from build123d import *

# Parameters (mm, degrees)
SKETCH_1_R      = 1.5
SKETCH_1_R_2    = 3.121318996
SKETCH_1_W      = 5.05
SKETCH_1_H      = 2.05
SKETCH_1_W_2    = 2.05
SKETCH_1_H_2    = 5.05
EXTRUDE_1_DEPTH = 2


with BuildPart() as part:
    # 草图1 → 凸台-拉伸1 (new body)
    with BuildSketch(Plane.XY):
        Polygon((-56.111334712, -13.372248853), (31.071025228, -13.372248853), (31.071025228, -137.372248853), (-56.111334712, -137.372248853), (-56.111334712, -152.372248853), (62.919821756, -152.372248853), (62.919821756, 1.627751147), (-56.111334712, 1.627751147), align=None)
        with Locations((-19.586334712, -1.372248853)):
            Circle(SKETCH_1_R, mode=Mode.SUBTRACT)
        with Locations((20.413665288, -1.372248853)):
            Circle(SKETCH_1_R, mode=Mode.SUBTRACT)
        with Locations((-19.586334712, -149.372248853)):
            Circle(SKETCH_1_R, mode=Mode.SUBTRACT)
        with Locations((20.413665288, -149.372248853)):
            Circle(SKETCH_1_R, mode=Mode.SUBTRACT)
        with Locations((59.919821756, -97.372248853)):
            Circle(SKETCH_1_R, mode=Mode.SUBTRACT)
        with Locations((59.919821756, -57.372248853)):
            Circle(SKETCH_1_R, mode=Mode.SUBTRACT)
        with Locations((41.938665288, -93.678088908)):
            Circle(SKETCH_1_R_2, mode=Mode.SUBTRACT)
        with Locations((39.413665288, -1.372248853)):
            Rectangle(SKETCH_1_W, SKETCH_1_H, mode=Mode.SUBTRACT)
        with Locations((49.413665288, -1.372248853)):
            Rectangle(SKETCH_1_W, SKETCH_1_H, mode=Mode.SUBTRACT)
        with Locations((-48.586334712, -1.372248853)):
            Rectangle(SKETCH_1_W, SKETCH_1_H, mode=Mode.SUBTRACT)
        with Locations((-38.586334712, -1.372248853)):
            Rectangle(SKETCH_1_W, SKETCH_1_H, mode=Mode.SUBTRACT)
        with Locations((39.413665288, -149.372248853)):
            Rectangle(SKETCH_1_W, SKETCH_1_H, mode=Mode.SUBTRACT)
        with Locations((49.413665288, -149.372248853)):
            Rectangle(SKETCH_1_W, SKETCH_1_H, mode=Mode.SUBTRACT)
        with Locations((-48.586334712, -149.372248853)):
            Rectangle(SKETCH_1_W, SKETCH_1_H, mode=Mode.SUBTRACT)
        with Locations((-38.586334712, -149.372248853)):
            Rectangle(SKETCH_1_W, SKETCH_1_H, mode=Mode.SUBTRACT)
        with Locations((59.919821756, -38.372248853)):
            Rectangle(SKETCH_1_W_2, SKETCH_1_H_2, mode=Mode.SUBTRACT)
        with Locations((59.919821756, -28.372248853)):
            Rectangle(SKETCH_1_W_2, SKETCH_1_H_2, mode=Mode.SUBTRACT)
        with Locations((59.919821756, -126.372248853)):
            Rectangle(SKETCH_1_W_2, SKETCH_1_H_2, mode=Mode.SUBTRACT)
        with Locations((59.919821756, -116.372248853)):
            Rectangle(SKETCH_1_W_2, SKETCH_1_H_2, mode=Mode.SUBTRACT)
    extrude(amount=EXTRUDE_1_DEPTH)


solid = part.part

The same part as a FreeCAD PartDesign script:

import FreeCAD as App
import Part
import Sketcher

V = App.Vector

doc = App.newDocument("Part")
body = doc.addObject("PartDesign::Body", "Body")

sketch1 = body.newObject("Sketcher::SketchObject", "Sketch")
sketch1.AttachmentSupport = (doc.getObject("XY_Plane"), [""])
sketch1.MapMode = "FlatFace"
sketch1.addGeometry([
    Part.LineSegment(V(-56.111335, -13.372249, 0), V(31.071025, -13.372249, 0)),
    Part.LineSegment(V(31.071025, -13.372249, 0), V(31.071025, -137.372249, 0)),
    Part.LineSegment(V(31.071025, -137.372249, 0), V(-56.111335, -137.372249, 0)),
    Part.LineSegment(V(-56.111335, -137.372249, 0), V(-56.111335, -152.372249, 0)),
    Part.LineSegment(V(-56.111335, -152.372249, 0), V(62.919822, -152.372249, 0)),
    Part.LineSegment(V(62.919822, -152.372249, 0), V(62.919822, 1.627751, 0)),
    Part.LineSegment(V(62.919822, 1.627751, 0), V(-56.111335, 1.627751, 0)),
    Part.LineSegment(V(-56.111335, 1.627751, 0), V(-56.111335, -13.372249, 0)),
    Part.LineSegment(V(-46.061335, -150.397249, 0), V(-51.111335, -150.397249, 0)),
    Part.LineSegment(V(-51.111335, -150.397249, 0), V(-51.111335, -148.347249, 0)),
    Part.LineSegment(V(-51.111335, -148.347249, 0), V(-46.061335, -148.347249, 0)),
    Part.LineSegment(V(-46.061335, -148.347249, 0), V(-46.061335, -150.397249, 0)),
    Part.LineSegment(V(-36.061335, -150.397249, 0), V(-41.111335, -150.397249, 0)),
    Part.LineSegment(V(-41.111335, -150.397249, 0), V(-41.111335, -148.347249, 0)),
    Part.LineSegment(V(-41.111335, -148.347249, 0), V(-36.061335, -148.347249, 0)),
    Part.LineSegment(V(-36.061335, -148.347249, 0), V(-36.061335, -150.397249, 0)),
    Part.Circle(V(-19.586335, -149.372249, 0), V(0, 0, 1), 1.5),
    Part.Circle(V(20.413665, -149.372249, 0), V(0, 0, 1), 1.5),
    Part.LineSegment(V(41.938665, -150.397249, 0), V(36.888665, -150.397249, 0)),
    Part.LineSegment(V(36.888665, -150.397249, 0), V(36.888665, -148.347249, 0)),
    Part.LineSegment(V(36.888665, -148.347249, 0), V(41.938665, -148.347249, 0)),
    Part.LineSegment(V(41.938665, -148.347249, 0), V(41.938665, -150.397249, 0)),
    Part.LineSegment(V(51.938665, -150.397249, 0), V(46.888665, -150.397249, 0)),
    Part.LineSegment(V(46.888665, -150.397249, 0), V(46.888665, -148.347249, 0)),
    Part.LineSegment(V(46.888665, -148.347249, 0), V(51.938665, -148.347249, 0)),
    Part.LineSegment(V(51.938665, -148.347249, 0), V(51.938665, -150.397249, 0)),
    Part.LineSegment(V(60.944822, -128.897249, 0), V(58.894822, -128.897249, 0)),
    Part.LineSegment(V(58.894822, -128.897249, 0), V(58.894822, -123.847249, 0)),
    Part.LineSegment(V(58.894822, -123.847249, 0), V(60.944822, -123.847249, 0)),
    Part.LineSegment(V(60.944822, -123.847249, 0), V(60.944822, -128.897249, 0)),
    Part.LineSegment(V(60.944822, -118.897249, 0), V(58.894822, -118.897249, 0)),
    Part.LineSegment(V(58.894822, -118.897249, 0), V(58.894822, -113.847249, 0)),
    Part.LineSegment(V(58.894822, -113.847249, 0), V(60.944822, -113.847249, 0)),
    Part.LineSegment(V(60.944822, -113.847249, 0), V(60.944822, -118.897249, 0)),
    Part.Circle(V(59.919822, -97.372249, 0), V(0, 0, 1), 1.5),
    Part.Circle(V(41.938665, -93.678089, 0), V(0, 0, 1), 3.121319),
    Part.LineSegment(V(-46.061335, -2.397249, 0), V(-51.111335, -2.397249, 0)),
    Part.LineSegment(V(-51.111335, -2.397249, 0), V(-51.111335, -0.347249, 0)),
    Part.LineSegment(V(-51.111335, -0.347249, 0), V(-46.061335, -0.347249, 0)),
    Part.LineSegment(V(-46.061335, -0.347249, 0), V(-46.061335, -2.397249, 0)),
    Part.LineSegment(V(-36.061335, -2.397249, 0), V(-41.111335, -2.397249, 0)),
    Part.LineSegment(V(-41.111335, -2.397249, 0), V(-41.111335, -0.347249, 0)),
    Part.LineSegment(V(-41.111335, -0.347249, 0), V(-36.061335, -0.347249, 0)),
    Part.LineSegment(V(-36.061335, -0.347249, 0), V(-36.061335, -2.397249, 0)),
    Part.Circle(V(-19.586335, -1.372249, 0), V(0, 0, 1), 1.5),
    Part.Circle(V(59.919822, -57.372249, 0), V(0, 0, 1), 1.5),
    Part.LineSegment(V(60.944822, -40.897249, 0), V(58.894822, -40.897249, 0)),
    Part.LineSegment(V(58.894822, -40.897249, 0), V(58.894822, -35.847249, 0)),
    Part.LineSegment(V(58.894822, -35.847249, 0), V(60.944822, -35.847249, 0)),
    Part.LineSegment(V(60.944822, -35.847249, 0), V(60.944822, -40.897249, 0)),
    Part.Circle(V(20.413665, -1.372249, 0), V(0, 0, 1), 1.5),
    Part.LineSegment(V(60.944822, -30.897249, 0), V(58.894822, -30.897249, 0)),
    Part.LineSegment(V(58.894822, -30.897249, 0), V(58.894822, -25.847249, 0)),
    Part.LineSegment(V(58.894822, -25.847249, 0), V(60.944822, -25.847249, 0)),
    Part.LineSegment(V(60.944822, -25.847249, 0), V(60.944822, -30.897249, 0)),
    Part.LineSegment(V(41.938665, -2.397249, 0), V(36.888665, -2.397249, 0)),
    Part.LineSegment(V(36.888665, -2.397249, 0), V(36.888665, -0.347249, 0)),
    Part.LineSegment(V(36.888665, -0.347249, 0), V(41.938665, -0.347249, 0)),
    Part.LineSegment(V(41.938665, -0.347249, 0), V(41.938665, -2.397249, 0)),
    Part.LineSegment(V(51.938665, -2.397249, 0), V(46.888665, -2.397249, 0)),
    Part.LineSegment(V(46.888665, -2.397249, 0), V(46.888665, -0.347249, 0)),
    Part.LineSegment(V(46.888665, -0.347249, 0), V(51.938665, -0.347249, 0)),
    Part.LineSegment(V(51.938665, -0.347249, 0), V(51.938665, -2.397249, 0)),
], False)
sketch1.addConstraint([
    Sketcher.Constraint("Coincident", 0, 2, 1, 1),
    Sketcher.Constraint("Coincident", 1, 2, 2, 1),
    Sketcher.Constraint("Coincident", 2, 2, 3, 1),
    Sketcher.Constraint("Coincident", 3, 2, 4, 1),
    Sketcher.Constraint("Coincident", 4, 2, 5, 1),
    Sketcher.Constraint("Coincident", 5, 2, 6, 1),
    Sketcher.Constraint("Coincident", 6, 2, 7, 1),
    Sketcher.Constraint("Coincident", 7, 2, 0, 1),
    Sketcher.Constraint("Coincident", 8, 2, 9, 1),
    Sketcher.Constraint("Coincident", 9, 2, 10, 1),
    Sketcher.Constraint("Coincident", 10, 2, 11, 1),
    Sketcher.Constraint("Coincident", 11, 2, 8, 1),
    Sketcher.Constraint("Coincident", 12, 2, 13, 1),
    Sketcher.Constraint("Coincident", 13, 2, 14, 1),
    Sketcher.Constraint("Coincident", 14, 2, 15, 1),
    Sketcher.Constraint("Coincident", 15, 2, 12, 1),
    Sketcher.Constraint("Coincident", 18, 2, 19, 1),
    Sketcher.Constraint("Coincident", 19, 2, 20, 1),
    Sketcher.Constraint("Coincident", 20, 2, 21, 1),
    Sketcher.Constraint("Coincident", 21, 2, 18, 1),
    Sketcher.Constraint("Coincident", 22, 2, 23, 1),
    Sketcher.Constraint("Coincident", 23, 2, 24, 1),
    Sketcher.Constraint("Coincident", 24, 2, 25, 1),
    Sketcher.Constraint("Coincident", 25, 2, 22, 1),
    Sketcher.Constraint("Coincident", 26, 2, 27, 1),
    Sketcher.Constraint("Coincident", 27, 2, 28, 1),
    Sketcher.Constraint("Coincident", 28, 2, 29, 1),
    Sketcher.Constraint("Coincident", 29, 2, 26, 1),
    Sketcher.Constraint("Coincident", 30, 2, 31, 1),
    Sketcher.Constraint("Coincident", 31, 2, 32, 1),
    Sketcher.Constraint("Coincident", 32, 2, 33, 1),
    Sketcher.Constraint("Coincident", 33, 2, 30, 1),
    Sketcher.Constraint("Coincident", 36, 2, 37, 1),
    Sketcher.Constraint("Coincident", 37, 2, 38, 1),
    Sketcher.Constraint("Coincident", 38, 2, 39, 1),
    Sketcher.Constraint("Coincident", 39, 2, 36, 1),
    Sketcher.Constraint("Coincident", 40, 2, 41, 1),
    Sketcher.Constraint("Coincident", 41, 2, 42, 1),
    Sketcher.Constraint("Coincident", 42, 2, 43, 1),
    Sketcher.Constraint("Coincident", 43, 2, 40, 1),
    Sketcher.Constraint("Coincident", 46, 2, 47, 1),
    Sketcher.Constraint("Coincident", 47, 2, 48, 1),
    Sketcher.Constraint("Coincident", 48, 2, 49, 1),
    Sketcher.Constraint("Coincident", 49, 2, 46, 1),
    Sketcher.Constraint("Coincident", 51, 2, 52, 1),
    Sketcher.Constraint("Coincident", 52, 2, 53, 1),
    Sketcher.Constraint("Coincident", 53, 2, 54, 1),
    Sketcher.Constraint("Coincident", 54, 2, 51, 1),
    Sketcher.Constraint("Coincident", 55, 2, 56, 1),
    Sketcher.Constraint("Coincident", 56, 2, 57, 1),
    Sketcher.Constraint("Coincident", 57, 2, 58, 1),
    Sketcher.Constraint("Coincident", 58, 2, 55, 1),
    Sketcher.Constraint("Coincident", 59, 2, 60, 1),
    Sketcher.Constraint("Coincident", 60, 2, 61, 1),
    Sketcher.Constraint("Coincident", 61, 2, 62, 1),
    Sketcher.Constraint("Coincident", 62, 2, 59, 1),
    Sketcher.Constraint("Horizontal", 0),
    Sketcher.Constraint("Vertical", 1),
    Sketcher.Constraint("Horizontal", 2),
    Sketcher.Constraint("Vertical", 3),
    Sketcher.Constraint("Horizontal", 4),
    Sketcher.Constraint("Vertical", 5),
    Sketcher.Constraint("Horizontal", 6),
    Sketcher.Constraint("Vertical", 7),
    Sketcher.Constraint("Horizontal", 8),
    Sketcher.Constraint("Vertical", 9),
    Sketcher.Constraint("Horizontal", 10),
    Sketcher.Constraint("Vertical", 11),
    Sketcher.Constraint("Horizontal", 12),
    Sketcher.Constraint("Vertical", 13),
    Sketcher.Constraint("Horizontal", 14),
    Sketcher.Constraint("Vertical", 15),
    Sketcher.Constraint("Horizontal", 18),
    Sketcher.Constraint("Vertical", 19),
    Sketcher.Constraint("Horizontal", 20),
    Sketcher.Constraint("Vertical", 21),
    Sketcher.Constraint("Horizontal", 22),
    Sketcher.Constraint("Vertical", 23),
    Sketcher.Constraint("Horizontal", 24),
    Sketcher.Constraint("Vertical", 25),
    Sketcher.Constraint("Horizontal", 26),
    Sketcher.Constraint("Vertical", 27),
    Sketcher.Constraint("Horizontal", 28),
    Sketcher.Constraint("Vertical", 29),
    Sketcher.Constraint("Horizontal", 30),
    Sketcher.Constraint("Vertical", 31),
    Sketcher.Constraint("Horizontal", 32),
    Sketcher.Constraint("Vertical", 33),
    Sketcher.Constraint("Horizontal", 36),
    Sketcher.Constraint("Vertical", 37),
    Sketcher.Constraint("Horizontal", 38),
    Sketcher.Constraint("Vertical", 39),
    Sketcher.Constraint("Horizontal", 40),
    Sketcher.Constraint("Vertical", 41),
    Sketcher.Constraint("Horizontal", 42),
    Sketcher.Constraint("Vertical", 43),
    Sketcher.Constraint("Horizontal", 46),
    Sketcher.Constraint("Vertical", 47),
    Sketcher.Constraint("Horizontal", 48),
    Sketcher.Constraint("Vertical", 49),
    Sketcher.Constraint("Horizontal", 51),
    Sketcher.Constraint("Vertical", 52),
    Sketcher.Constraint("Horizontal", 53),
    Sketcher.Constraint("Vertical", 54),
    Sketcher.Constraint("Horizontal", 55),
    Sketcher.Constraint("Vertical", 56),
    Sketcher.Constraint("Horizontal", 57),
    Sketcher.Constraint("Vertical", 58),
    Sketcher.Constraint("Horizontal", 59),
    Sketcher.Constraint("Vertical", 60),
    Sketcher.Constraint("Horizontal", 61),
    Sketcher.Constraint("Vertical", 62),
    Sketcher.Constraint("Equal", 16, 17),
    Sketcher.Constraint("Equal", 17, 34),
    Sketcher.Constraint("Equal", 34, 44),
    Sketcher.Constraint("Equal", 44, 45),
    Sketcher.Constraint("Equal", 45, 50),
    Sketcher.Constraint("Horizontal", 16, 3, 17, 3),
    Sketcher.Constraint("Horizontal", 44, 3, 50, 3),
    Sketcher.Constraint("Horizontal", 11, 2, 12, 2),
    Sketcher.Constraint("Horizontal", 10, 2, 13, 2),
    Sketcher.Constraint("Horizontal", 15, 2, 18, 2),
    Sketcher.Constraint("Horizontal", 14, 2, 19, 2),
    Sketcher.Constraint("Horizontal", 21, 2, 22, 2),
    Sketcher.Constraint("Horizontal", 20, 2, 23, 2),
    Sketcher.Constraint("Horizontal", 39, 2, 40, 2),
    Sketcher.Constraint("Horizontal", 38, 2, 41, 2),
    Sketcher.Constraint("Horizontal", 43, 2, 55, 2),
    Sketcher.Constraint("Horizontal", 42, 2, 56, 2),
    Sketcher.Constraint("Horizontal", 58, 2, 59, 2),
    Sketcher.Constraint("Horizontal", 57, 2, 60, 2),
    Sketcher.Constraint("Vertical", 16, 3, 44, 3),
    Sketcher.Constraint("Vertical", 34, 3, 45, 3),
    Sketcher.Constraint("Vertical", 17, 3, 50, 3),
    Sketcher.Constraint("Vertical", 3, 2, 6, 2),
    Sketcher.Constraint("Vertical", 35, 3, 20, 2),
    Sketcher.Constraint("Vertical", 27, 2, 30, 2),
    Sketcher.Constraint("Vertical", 29, 2, 32, 2),
    Sketcher.Constraint("Vertical", 9, 2, 36, 2),
    Sketcher.Constraint("Vertical", 11, 2, 38, 2),
    Sketcher.Constraint("Vertical", 13, 2, 40, 2),
    Sketcher.Constraint("Vertical", 15, 2, 42, 2),
    Sketcher.Constraint("Vertical", 31, 2, 46, 2),
    Sketcher.Constraint("Vertical", 33, 2, 48, 2),
    Sketcher.Constraint("Vertical", 47, 2, 51, 2),
    Sketcher.Constraint("Vertical", 49, 2, 53, 2),
    Sketcher.Constraint("Vertical", 19, 2, 55, 2),
    Sketcher.Constraint("Vertical", 21, 2, 57, 2),
    Sketcher.Constraint("Vertical", 23, 2, 59, 2),
    Sketcher.Constraint("Vertical", 25, 2, 61, 2),
    Sketcher.Constraint("Equal", 10, 12),
    Sketcher.Constraint("Equal", 14, 18),
    Sketcher.Constraint("Equal", 20, 22),
    Sketcher.Constraint("Equal", 3, 7),
    Sketcher.Constraint("Equal", 53, 9),
    Sketcher.Constraint("Equal", 61, 27),
    Sketcher.Constraint("Equal", 29, 31),
    Sketcher.Constraint("Equal", 25, 37),
    Sketcher.Constraint("Equal", 33, 47),
    Sketcher.Constraint("Equal", 49, 52),
    Sketcher.Constraint("Diameter", 16, 3.0),
    Sketcher.Constraint("DistanceY", 1, 2, 1, 1, 124.0),
    Sketcher.Constraint("DistanceY", 3, 2, 3, 1, 15.0),
    Sketcher.Constraint("DistanceX", 8, 2, 8, 1, 5.05),
    Sketcher.Constraint("DistanceX", 26, 2, 26, 1, 2.05),
    Sketcher.Constraint("Diameter", 35, 6.242638),
    Sketcher.Constraint("DistanceX", 0, 1, 0, 2, 87.18236),
    Sketcher.Constraint("DistanceX", 4, 1, 4, 2, 119.031156),
    Sketcher.Constraint("DistanceY", 16, 3, -1, 1, 149.372249),
    Sketcher.Constraint("DistanceX", -1, 1, 34, 3, 59.919822),
    Sketcher.Constraint("DistanceY", 34, 3, -1, 1, 97.372249),
    Sketcher.Constraint("DistanceY", 35, 3, -1, 1, 93.678089),
    Sketcher.Constraint("DistanceY", 44, 3, -1, 1, 1.372249),
    Sketcher.Constraint("DistanceY", 45, 3, -1, 1, 57.372249),
    Sketcher.Constraint("DistanceY", 0, 2, -1, 1, 13.372249),
    Sketcher.Constraint("DistanceX", -1, 1, 4, 2, 62.919822),
    Sketcher.Constraint("DistanceY", 8, 2, -1, 1, 150.397249),
    Sketcher.Constraint("DistanceX", -1, 1, 26, 2, 58.894822),
    Sketcher.Constraint("DistanceY", 26, 2, -1, 1, 128.897249),
    Sketcher.Constraint("DistanceY", 30, 2, -1, 1, 118.897249),
    Sketcher.Constraint("DistanceY", 36, 2, -1, 1, 2.397249),
    Sketcher.Constraint("DistanceY", 46, 2, -1, 1, 40.897249),
    Sketcher.Constraint("DistanceY", 51, 2, -1, 1, 30.897249),
    Sketcher.Constraint("DistanceX", 16, 3, -1, 1, 19.586335),
    Sketcher.Constraint("DistanceX", -1, 1, 17, 3, 20.413665),
    Sketcher.Constraint("DistanceX", -1, 1, 35, 3, 41.938665),
    Sketcher.Constraint("DistanceX", 8, 2, -1, 1, 51.111335),
    Sketcher.Constraint("DistanceX", 12, 2, -1, 1, 41.111335),
    Sketcher.Constraint("DistanceX", -1, 1, 22, 2, 46.888665),
])
pad1 = body.newObject("PartDesign::Pad", "Pad")
pad1.Profile = sketch1
pad1.Length = 2

doc.recompute()
